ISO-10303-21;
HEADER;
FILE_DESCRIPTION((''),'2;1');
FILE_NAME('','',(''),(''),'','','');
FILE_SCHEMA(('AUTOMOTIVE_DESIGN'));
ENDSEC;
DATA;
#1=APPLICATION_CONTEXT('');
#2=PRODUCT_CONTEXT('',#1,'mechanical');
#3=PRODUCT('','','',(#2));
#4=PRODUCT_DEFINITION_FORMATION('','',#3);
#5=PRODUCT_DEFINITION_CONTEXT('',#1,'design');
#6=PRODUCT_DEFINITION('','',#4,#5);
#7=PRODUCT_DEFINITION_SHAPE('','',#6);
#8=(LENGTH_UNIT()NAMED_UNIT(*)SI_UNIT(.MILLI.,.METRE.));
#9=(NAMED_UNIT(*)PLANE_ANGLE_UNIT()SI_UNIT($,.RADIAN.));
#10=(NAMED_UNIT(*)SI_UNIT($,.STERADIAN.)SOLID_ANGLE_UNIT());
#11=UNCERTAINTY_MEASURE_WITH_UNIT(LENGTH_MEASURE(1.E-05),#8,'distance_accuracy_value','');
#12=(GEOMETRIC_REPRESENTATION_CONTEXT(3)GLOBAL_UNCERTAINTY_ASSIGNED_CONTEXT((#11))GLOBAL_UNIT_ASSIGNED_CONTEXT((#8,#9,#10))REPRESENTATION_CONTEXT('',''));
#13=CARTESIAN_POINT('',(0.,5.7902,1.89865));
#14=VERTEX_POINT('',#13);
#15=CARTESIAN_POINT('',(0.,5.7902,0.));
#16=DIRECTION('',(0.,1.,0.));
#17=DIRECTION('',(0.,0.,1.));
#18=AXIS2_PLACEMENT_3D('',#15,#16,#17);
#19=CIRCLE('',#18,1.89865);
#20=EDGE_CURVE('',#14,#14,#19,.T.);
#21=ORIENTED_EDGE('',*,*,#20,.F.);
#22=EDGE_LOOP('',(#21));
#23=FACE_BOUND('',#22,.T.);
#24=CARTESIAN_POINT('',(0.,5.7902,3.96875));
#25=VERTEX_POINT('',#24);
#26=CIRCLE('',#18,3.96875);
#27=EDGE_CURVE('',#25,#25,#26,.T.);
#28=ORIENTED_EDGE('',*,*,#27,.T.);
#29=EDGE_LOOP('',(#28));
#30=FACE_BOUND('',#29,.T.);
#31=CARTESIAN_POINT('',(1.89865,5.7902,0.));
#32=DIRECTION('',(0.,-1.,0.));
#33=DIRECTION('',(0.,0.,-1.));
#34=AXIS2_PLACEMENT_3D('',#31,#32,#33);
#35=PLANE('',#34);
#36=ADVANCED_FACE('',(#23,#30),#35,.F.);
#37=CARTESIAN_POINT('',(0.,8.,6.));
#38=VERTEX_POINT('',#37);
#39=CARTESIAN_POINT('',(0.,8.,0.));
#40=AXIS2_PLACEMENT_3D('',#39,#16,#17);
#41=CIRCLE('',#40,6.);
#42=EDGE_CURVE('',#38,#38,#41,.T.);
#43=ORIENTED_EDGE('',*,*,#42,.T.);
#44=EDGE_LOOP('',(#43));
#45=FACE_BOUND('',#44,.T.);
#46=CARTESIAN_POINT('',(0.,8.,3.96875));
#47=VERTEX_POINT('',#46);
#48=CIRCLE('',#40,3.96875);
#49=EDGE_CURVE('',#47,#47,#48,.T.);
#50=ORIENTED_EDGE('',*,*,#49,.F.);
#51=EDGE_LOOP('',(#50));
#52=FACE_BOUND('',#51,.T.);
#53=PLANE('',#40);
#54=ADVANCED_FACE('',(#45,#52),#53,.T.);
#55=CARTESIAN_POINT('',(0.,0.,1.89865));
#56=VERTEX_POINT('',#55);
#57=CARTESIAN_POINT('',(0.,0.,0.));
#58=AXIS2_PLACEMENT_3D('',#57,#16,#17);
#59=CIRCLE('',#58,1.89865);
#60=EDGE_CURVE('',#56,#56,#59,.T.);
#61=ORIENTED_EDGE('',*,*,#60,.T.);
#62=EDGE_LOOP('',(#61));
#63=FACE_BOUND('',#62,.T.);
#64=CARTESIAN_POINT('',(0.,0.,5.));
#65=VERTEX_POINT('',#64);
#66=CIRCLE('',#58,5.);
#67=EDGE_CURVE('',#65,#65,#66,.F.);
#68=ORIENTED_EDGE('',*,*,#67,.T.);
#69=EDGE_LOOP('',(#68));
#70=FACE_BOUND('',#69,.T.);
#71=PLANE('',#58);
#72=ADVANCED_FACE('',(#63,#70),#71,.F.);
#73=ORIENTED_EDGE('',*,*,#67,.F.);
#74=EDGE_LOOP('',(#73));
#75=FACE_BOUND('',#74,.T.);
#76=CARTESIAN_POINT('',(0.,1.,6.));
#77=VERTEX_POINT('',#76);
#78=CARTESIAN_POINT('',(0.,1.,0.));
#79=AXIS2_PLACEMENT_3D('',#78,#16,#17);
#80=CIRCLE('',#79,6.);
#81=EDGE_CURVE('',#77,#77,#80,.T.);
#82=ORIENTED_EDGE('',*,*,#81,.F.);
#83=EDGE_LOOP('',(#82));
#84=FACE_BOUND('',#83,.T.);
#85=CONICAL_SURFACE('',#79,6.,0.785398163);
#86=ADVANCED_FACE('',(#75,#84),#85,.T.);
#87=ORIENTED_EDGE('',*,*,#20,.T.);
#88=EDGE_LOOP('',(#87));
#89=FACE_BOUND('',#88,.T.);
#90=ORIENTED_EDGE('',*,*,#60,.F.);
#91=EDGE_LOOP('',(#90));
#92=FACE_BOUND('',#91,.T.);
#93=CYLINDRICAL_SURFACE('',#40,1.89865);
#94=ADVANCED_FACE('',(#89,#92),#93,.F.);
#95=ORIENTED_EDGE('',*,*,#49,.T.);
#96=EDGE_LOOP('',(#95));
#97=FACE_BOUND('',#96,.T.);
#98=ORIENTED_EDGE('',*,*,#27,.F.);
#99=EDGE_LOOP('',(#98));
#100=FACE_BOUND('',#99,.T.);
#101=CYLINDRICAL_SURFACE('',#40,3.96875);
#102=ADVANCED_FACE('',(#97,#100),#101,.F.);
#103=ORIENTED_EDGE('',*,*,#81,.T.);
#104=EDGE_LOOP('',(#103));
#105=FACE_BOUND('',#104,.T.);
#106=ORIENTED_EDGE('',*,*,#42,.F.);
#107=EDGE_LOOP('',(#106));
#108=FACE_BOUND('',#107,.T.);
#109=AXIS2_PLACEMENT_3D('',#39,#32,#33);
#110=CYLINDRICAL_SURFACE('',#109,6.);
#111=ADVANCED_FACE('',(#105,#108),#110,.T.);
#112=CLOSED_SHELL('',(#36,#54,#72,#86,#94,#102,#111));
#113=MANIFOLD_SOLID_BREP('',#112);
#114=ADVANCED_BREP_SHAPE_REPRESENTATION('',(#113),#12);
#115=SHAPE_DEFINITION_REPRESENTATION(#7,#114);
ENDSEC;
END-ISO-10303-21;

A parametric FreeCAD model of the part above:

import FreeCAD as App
import Part
import Sketcher
Q = App.Units.Quantity


def edges_at(feature, points):
    """Names of the edges that pass closest to the given points."""
    edges = feature.Shape.Edges
    near = lambda p: min(range(len(edges)), key=lambda i: edges[i].distToShape(Part.Vertex(*p))[0])
    return sorted({f"Edge{near(p) + 1}" for p in points})

doc = App.newDocument("Part")
params = doc.addObject("Spreadsheet::Sheet", "Params")
for row, (alias, value) in enumerate([
    ("sketch1_diameter", "12 mm"),
    ("pad1_length", "8 mm"),
    ("hole_diameter", "3.7973 mm"),
    ("hole_cbore_diameter", "7.9375 mm"),
    ("hole_cbore_depth", "2.2098 mm"),
    ("chamfer_size", "1 mm"),
], start=1):
    params.set(f"A{row}", alias)
    params.set(f"B{row}", "=" + value)
    params.setAlias(f"B{row}", alias)

body = doc.addObject("PartDesign::Body", "Body")

sketch1 = doc.addObject("Sketcher::SketchObject", "Sketch")
body.addObject(sketch1)
sketch1.AttachmentSupport = (doc.XZ_Plane, [""])
sketch1.MapMode = "FlatFace"
sketch1.addGeometry(Part.Circle(App.Vector(0, 0, 0), App.Vector(0, 0, 1), 6), False)
sketch1.addConstraint(Sketcher.Constraint("Coincident", 0, 3, -1, 1))
sketch1.addConstraint(Sketcher.Constraint("Diameter", 0, Q("12 mm")))
sketch1.setExpression("Constraints[1]", "Params.sketch1_diameter")
pad1 = doc.addObject("PartDesign::Pad", "Pad")
body.addObject(pad1)
pad1.Profile = sketch1
pad1.setExpression("Length", "Params.pad1_length")
pad1.Reversed = True

sketch2 = doc.addObject("Sketcher::SketchObject", "Sketch001")
body.addObject(sketch2)
sketch2.AttachmentSupport = (doc.XZ_Plane, [""])
sketch2.MapMode = "FlatFace"
sketch2.AttachmentOffset = App.Placement(App.Vector(0, 0, -8), App.Rotation())
sketch2.addGeometry(Part.Circle(App.Vector(0, 0, 0), App.Vector(0, 0, 1), 1.9), False)
sketch2.addConstraint(Sketcher.Constraint("Coincident", 0, 3, -1, 1))
sketch2.addConstraint(Sketcher.Constraint("Diameter", 0, Q("3.7973 mm")))
doc.recompute()
hole = doc.addObject("PartDesign::Hole", "Hole")
body.addObject(hole)
hole.Profile = sketch2
hole.ThreadType = "None"
hole.setExpression("Diameter", "Params.hole_diameter")
hole.DepthType = "ThroughAll"
hole.HoleCutType = "Counterbore"
hole.setExpression("HoleCutDiameter", "Params.hole_cbore_diameter")
hole.setExpression("HoleCutDepth", "Params.hole_cbore_depth")
hole.Reversed = True
doc.recompute()

chamfer = doc.addObject("PartDesign::Chamfer", "Chamfer")
body.addObject(chamfer)
chamfer.Base = (hole, edges_at(hole, [(-6, 0, 0)]))
chamfer.setExpression("Size", "Params.chamfer_size")

doc.recompute()
